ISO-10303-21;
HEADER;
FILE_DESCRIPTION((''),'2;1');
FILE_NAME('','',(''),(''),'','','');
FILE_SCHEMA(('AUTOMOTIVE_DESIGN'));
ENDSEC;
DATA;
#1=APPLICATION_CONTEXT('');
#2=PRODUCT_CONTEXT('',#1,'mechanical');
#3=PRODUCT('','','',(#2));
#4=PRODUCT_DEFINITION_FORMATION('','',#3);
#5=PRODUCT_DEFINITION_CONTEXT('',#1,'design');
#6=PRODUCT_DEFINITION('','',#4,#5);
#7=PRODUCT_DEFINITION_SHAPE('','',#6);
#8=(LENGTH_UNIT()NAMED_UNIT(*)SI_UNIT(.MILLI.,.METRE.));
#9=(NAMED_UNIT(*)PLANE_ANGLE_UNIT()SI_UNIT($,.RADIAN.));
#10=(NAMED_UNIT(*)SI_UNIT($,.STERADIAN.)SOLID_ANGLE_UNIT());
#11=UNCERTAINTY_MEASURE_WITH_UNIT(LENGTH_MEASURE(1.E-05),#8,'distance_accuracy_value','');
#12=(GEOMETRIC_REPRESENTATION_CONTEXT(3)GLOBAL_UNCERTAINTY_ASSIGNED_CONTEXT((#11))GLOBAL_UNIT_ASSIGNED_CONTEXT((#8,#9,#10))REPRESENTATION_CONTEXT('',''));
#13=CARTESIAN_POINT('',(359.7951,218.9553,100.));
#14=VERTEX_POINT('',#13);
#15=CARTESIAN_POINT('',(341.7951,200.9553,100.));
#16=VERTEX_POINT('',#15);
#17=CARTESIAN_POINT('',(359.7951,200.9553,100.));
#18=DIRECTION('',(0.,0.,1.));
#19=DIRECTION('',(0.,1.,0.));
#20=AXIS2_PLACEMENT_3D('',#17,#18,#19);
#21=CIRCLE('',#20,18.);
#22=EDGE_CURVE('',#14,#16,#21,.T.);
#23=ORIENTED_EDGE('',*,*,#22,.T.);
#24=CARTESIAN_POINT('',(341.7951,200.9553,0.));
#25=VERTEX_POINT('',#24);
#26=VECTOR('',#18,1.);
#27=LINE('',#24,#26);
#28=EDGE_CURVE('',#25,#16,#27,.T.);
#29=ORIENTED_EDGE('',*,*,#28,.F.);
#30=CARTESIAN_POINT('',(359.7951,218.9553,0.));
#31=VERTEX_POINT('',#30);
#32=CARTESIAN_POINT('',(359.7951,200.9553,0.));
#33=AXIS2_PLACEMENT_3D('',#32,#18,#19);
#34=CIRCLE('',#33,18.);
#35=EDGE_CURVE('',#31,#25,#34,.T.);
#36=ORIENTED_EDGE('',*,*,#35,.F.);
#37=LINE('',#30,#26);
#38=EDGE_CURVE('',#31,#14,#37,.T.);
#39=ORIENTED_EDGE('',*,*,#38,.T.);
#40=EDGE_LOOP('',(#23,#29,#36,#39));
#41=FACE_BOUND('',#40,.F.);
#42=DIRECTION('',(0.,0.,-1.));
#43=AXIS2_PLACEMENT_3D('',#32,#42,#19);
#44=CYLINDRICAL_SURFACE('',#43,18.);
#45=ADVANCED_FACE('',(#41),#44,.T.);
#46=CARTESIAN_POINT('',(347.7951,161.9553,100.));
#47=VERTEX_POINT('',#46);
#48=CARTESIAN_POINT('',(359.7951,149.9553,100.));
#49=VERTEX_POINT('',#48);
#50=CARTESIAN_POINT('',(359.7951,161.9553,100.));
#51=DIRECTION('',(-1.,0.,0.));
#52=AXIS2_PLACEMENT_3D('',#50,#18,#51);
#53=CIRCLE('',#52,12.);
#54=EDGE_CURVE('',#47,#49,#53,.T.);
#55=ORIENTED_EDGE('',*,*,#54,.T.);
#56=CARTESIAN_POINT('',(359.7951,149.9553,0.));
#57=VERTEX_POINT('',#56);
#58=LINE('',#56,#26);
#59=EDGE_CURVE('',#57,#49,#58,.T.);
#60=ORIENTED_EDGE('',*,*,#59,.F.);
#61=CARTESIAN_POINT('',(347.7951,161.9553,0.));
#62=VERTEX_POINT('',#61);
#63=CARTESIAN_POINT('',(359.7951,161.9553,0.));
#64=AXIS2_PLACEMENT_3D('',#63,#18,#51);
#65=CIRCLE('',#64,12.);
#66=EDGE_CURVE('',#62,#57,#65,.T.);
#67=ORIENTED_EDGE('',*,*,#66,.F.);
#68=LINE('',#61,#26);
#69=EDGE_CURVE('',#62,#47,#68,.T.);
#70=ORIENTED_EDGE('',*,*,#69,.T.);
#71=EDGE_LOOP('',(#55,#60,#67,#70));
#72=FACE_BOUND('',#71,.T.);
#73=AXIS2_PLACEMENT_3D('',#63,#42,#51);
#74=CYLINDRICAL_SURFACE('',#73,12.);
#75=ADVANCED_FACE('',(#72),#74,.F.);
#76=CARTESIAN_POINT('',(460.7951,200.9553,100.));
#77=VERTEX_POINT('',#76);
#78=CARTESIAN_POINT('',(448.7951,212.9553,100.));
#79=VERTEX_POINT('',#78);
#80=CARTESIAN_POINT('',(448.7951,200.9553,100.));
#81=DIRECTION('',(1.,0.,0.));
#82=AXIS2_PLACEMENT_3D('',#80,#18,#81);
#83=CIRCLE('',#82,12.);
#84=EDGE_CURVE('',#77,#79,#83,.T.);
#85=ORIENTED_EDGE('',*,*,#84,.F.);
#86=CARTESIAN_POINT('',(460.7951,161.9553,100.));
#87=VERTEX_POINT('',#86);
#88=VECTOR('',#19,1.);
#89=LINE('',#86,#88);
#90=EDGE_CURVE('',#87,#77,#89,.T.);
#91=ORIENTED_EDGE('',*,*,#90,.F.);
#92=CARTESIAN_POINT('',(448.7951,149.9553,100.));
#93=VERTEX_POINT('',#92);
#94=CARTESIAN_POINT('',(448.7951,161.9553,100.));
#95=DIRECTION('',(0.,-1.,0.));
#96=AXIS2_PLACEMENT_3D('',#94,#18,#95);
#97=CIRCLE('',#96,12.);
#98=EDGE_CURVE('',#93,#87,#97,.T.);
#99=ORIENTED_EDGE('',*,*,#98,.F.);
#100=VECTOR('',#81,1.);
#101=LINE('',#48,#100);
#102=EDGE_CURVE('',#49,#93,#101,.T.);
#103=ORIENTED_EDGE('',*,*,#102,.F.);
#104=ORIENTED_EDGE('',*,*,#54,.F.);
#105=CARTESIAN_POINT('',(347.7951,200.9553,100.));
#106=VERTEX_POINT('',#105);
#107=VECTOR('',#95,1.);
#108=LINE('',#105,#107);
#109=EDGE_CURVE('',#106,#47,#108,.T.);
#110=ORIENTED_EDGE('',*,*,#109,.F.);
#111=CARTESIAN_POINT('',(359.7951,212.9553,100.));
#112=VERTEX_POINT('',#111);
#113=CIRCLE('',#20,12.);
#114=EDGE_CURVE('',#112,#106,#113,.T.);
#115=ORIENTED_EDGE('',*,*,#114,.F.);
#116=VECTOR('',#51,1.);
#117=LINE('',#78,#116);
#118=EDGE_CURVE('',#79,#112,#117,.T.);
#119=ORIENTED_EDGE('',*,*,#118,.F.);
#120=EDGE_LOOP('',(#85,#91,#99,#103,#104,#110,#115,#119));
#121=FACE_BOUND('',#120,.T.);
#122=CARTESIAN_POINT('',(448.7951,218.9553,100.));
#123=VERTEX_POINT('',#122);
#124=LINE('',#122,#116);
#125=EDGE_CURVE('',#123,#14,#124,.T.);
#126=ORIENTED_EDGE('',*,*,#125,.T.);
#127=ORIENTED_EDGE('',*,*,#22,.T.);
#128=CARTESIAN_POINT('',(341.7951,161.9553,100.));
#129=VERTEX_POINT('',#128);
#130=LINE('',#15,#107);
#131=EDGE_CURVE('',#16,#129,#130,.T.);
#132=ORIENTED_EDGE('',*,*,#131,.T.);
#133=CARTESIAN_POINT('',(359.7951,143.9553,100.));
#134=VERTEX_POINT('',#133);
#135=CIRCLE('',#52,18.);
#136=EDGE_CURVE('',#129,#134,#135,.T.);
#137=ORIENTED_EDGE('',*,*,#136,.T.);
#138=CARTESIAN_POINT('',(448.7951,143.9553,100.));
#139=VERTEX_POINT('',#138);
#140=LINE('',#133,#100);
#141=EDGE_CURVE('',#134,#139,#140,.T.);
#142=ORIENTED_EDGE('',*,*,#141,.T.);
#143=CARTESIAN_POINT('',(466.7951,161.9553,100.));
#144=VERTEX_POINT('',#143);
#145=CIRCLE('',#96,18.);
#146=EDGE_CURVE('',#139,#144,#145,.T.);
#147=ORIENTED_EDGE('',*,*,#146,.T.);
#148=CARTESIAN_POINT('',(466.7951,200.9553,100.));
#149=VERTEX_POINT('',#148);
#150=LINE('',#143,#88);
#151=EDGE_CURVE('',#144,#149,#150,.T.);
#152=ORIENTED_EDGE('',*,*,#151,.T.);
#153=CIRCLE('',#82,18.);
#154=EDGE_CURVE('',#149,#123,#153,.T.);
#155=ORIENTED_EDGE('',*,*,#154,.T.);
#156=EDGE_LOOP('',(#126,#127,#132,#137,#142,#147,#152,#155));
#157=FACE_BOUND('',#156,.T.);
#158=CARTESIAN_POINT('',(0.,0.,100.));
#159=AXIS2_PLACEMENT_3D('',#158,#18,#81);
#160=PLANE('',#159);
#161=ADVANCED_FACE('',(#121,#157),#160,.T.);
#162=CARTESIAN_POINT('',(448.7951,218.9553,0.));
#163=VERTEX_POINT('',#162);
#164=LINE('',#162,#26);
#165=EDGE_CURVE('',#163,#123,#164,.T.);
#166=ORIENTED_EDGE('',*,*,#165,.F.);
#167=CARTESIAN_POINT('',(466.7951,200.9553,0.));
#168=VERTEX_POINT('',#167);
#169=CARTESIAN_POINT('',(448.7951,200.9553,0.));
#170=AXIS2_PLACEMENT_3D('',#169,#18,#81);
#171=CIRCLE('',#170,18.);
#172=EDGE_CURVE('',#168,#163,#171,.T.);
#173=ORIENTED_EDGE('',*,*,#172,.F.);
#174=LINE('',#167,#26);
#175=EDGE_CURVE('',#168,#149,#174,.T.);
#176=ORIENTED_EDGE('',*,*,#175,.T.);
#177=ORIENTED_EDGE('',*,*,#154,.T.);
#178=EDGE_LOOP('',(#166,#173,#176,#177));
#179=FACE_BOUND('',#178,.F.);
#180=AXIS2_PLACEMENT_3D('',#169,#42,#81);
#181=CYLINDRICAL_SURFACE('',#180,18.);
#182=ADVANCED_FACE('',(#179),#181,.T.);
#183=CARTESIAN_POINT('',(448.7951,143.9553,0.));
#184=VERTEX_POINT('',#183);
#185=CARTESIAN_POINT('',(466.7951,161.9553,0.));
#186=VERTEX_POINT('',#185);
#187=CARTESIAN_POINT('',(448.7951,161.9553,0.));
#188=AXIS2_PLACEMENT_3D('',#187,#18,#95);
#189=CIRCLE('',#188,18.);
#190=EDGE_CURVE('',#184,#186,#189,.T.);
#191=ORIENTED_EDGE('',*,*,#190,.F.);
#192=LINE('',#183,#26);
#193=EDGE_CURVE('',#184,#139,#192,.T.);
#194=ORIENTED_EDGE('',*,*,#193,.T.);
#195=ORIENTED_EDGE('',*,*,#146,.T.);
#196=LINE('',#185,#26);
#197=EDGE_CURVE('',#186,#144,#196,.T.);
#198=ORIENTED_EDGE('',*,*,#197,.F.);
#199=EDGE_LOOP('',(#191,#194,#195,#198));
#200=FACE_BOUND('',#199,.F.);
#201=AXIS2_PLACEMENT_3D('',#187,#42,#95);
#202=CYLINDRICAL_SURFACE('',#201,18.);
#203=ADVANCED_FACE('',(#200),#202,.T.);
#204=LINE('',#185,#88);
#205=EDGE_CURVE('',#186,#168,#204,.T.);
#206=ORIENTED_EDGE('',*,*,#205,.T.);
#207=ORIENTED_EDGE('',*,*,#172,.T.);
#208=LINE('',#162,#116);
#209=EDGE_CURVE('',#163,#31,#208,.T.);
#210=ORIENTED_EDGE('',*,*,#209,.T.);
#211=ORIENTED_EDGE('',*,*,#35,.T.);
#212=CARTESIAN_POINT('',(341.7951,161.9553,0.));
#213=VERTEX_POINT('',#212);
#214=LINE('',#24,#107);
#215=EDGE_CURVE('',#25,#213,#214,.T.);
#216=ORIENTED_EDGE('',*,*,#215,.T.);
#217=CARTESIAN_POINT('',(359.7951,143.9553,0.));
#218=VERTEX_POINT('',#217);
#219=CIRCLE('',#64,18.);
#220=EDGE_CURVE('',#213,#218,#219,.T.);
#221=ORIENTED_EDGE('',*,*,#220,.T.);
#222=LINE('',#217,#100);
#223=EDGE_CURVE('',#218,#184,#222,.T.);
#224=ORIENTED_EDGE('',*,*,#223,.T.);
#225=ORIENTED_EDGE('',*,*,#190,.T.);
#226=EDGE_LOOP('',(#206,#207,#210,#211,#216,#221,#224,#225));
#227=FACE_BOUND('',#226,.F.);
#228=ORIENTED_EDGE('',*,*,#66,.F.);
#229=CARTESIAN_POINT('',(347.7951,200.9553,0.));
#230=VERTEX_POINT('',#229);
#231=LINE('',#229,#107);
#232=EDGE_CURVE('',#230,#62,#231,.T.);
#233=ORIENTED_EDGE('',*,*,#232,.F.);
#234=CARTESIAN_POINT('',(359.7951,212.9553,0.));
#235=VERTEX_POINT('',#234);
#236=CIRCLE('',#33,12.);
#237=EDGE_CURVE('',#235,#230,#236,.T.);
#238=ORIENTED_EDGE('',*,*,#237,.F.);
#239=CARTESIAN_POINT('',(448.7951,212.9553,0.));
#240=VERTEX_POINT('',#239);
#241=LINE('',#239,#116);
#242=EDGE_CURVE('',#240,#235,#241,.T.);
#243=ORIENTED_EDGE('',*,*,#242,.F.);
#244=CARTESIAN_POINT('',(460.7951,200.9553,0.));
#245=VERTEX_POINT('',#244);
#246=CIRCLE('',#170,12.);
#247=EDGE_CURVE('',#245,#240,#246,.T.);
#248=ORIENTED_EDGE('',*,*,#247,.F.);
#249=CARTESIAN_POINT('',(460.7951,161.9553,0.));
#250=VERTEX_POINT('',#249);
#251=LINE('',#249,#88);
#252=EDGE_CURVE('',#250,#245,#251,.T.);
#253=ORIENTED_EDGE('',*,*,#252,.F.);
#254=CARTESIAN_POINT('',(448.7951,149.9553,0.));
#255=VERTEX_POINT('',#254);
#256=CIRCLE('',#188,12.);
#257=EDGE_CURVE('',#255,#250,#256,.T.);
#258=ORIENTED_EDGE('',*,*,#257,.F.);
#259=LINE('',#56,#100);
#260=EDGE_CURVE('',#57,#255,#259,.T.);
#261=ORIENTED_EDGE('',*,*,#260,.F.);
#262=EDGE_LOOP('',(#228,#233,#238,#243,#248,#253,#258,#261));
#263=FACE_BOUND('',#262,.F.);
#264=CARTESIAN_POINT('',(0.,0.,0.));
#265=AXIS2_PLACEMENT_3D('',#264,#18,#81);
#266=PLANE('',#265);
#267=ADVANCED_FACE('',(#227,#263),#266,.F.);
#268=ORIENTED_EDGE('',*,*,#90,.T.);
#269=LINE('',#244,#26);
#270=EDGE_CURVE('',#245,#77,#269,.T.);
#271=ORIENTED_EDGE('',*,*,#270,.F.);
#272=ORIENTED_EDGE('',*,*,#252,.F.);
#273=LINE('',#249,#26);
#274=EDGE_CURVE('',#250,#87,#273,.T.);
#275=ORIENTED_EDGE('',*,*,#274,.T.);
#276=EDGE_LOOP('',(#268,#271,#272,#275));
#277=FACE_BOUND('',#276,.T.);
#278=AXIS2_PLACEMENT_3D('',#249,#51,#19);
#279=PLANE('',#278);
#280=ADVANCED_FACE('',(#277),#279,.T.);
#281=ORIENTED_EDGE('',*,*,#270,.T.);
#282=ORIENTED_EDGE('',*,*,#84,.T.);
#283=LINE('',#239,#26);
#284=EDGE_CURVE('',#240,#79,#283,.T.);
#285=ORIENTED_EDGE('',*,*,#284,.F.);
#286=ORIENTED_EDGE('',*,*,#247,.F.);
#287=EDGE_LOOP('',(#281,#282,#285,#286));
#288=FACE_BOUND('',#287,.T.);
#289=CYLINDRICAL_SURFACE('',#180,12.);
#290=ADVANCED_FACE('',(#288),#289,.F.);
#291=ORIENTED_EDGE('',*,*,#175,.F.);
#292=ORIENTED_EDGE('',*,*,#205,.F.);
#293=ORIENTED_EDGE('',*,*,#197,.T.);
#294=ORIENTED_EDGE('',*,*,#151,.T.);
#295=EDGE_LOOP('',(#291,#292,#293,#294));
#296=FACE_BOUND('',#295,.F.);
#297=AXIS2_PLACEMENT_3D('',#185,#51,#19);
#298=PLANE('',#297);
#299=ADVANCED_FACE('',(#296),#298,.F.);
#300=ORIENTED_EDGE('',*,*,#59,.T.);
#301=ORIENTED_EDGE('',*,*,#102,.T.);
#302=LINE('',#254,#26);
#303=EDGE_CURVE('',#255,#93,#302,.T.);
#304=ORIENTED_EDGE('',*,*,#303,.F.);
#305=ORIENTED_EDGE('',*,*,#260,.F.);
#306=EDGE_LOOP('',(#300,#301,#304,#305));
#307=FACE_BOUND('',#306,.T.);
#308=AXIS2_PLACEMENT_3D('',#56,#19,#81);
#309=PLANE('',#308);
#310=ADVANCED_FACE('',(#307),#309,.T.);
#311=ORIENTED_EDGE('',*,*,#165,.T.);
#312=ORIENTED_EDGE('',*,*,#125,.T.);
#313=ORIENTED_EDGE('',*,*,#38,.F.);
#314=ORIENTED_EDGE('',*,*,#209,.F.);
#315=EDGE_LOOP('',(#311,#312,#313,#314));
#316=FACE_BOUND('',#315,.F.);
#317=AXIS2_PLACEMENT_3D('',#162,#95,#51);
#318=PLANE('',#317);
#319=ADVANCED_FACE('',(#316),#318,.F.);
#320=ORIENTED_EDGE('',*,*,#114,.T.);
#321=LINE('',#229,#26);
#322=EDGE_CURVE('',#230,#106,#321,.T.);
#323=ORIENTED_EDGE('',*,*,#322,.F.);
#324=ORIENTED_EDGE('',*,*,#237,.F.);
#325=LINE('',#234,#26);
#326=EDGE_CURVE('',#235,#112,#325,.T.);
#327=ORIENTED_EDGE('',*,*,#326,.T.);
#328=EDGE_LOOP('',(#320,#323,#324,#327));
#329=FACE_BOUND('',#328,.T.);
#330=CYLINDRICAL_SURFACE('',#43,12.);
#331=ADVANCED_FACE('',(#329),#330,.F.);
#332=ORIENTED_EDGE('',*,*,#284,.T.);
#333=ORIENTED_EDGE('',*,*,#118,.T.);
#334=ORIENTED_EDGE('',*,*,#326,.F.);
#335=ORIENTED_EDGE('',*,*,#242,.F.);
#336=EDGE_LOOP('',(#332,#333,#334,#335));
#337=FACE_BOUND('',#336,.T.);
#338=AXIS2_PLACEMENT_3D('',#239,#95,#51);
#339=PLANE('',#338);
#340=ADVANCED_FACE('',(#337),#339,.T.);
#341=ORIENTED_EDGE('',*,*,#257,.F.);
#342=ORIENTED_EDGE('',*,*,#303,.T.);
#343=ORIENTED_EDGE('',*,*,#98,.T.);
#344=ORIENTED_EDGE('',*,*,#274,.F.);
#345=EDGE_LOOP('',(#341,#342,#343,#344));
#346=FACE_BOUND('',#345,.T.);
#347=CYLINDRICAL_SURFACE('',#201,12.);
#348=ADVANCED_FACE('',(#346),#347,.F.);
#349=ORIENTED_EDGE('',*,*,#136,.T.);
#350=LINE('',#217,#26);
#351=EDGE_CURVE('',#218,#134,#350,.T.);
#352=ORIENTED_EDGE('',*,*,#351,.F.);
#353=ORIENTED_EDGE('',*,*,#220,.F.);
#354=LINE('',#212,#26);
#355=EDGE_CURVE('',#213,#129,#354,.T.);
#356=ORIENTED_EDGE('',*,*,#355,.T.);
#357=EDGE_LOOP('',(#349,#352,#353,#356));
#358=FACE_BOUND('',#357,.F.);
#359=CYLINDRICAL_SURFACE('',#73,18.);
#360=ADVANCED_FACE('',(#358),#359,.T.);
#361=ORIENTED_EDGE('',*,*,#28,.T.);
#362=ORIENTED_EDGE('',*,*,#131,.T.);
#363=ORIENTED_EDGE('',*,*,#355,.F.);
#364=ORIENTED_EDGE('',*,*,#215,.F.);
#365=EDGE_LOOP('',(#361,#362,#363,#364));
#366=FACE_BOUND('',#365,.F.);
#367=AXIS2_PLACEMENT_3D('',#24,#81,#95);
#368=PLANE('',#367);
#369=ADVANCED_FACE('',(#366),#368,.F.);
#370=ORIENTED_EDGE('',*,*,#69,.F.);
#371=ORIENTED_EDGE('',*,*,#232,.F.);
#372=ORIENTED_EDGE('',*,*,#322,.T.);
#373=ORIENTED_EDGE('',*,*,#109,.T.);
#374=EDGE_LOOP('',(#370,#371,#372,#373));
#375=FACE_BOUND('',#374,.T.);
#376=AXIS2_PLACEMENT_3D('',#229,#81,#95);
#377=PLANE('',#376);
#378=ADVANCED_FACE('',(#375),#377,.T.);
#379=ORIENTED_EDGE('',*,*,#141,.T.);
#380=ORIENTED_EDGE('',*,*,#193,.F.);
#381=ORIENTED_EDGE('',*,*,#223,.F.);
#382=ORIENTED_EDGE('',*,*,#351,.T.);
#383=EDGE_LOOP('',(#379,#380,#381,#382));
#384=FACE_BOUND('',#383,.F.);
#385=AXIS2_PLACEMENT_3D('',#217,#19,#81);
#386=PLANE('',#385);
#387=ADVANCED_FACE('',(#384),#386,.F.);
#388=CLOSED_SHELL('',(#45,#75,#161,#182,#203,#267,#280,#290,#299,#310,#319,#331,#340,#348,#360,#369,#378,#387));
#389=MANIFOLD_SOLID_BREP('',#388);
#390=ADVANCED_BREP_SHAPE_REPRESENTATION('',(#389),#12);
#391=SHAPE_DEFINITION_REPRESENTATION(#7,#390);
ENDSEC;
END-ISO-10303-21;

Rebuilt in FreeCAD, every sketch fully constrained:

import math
import FreeCAD as App
import Part
import Sketcher
Q = App.Units.Quantity

doc = App.newDocument("Part")
body = doc.addObject("PartDesign::Body", "Body")

# Sketch on XY plane
sketch1 = body.newObject("Sketcher::SketchObject", "Sketch")
sketch1.AttachmentSupport = (doc.getObject("XY_Plane"), [""])
sketch1.MapMode = "FlatFace"
sketch1.addGeometry([
    Part.LineSegment(App.Vector(360, 144, 0), App.Vector(449, 144, 0)),  # 0
    Part.ArcOfCircle(Part.Circle(App.Vector(449, 162, 0), App.Vector(0, 0, 1), 18), math.radians(-90), math.radians(0)),  # 1
    Part.LineSegment(App.Vector(467, 162, 0), App.Vector(467, 201, 0)),  # 2
    Part.ArcOfCircle(Part.Circle(App.Vector(449, 201, 0), App.Vector(0, 0, 1), 18), math.radians(0), math.radians(90)),  # 3
    Part.LineSegment(App.Vector(449, 219, 0), App.Vector(360, 219, 0)),  # 4
    Part.ArcOfCircle(Part.Circle(App.Vector(360, 201, 0), App.Vector(0, 0, 1), 18), math.radians(90), math.radians(180)),  # 5
    Part.LineSegment(App.Vector(342, 201, 0), App.Vector(342, 162, 0)),  # 6
    Part.ArcOfCircle(Part.Circle(App.Vector(360, 162, 0), App.Vector(0, 0, 1), 18), math.radians(180), math.radians(270)),  # 7
    Part.ArcOfCircle(Part.Circle(App.Vector(449, 162, 0), App.Vector(0, 0, 1), 12), math.radians(-90), math.radians(0)),  # 8
    Part.LineSegment(App.Vector(449, 150, 0), App.Vector(360, 150, 0)),  # 9
    Part.ArcOfCircle(Part.Circle(App.Vector(360, 162, 0), App.Vector(0, 0, 1), 12), math.radians(180), math.radians(270)),  # 10
    Part.LineSegment(App.Vector(348, 162, 0), App.Vector(348, 201, 0)),  # 11
    Part.ArcOfCircle(Part.Circle(App.Vector(360, 201, 0), App.Vector(0, 0, 1), 12), math.radians(90), math.radians(180)),  # 12
    Part.LineSegment(App.Vector(360, 213, 0), App.Vector(449, 213, 0)),  # 13
    Part.ArcOfCircle(Part.Circle(App.Vector(449, 201, 0), App.Vector(0, 0, 1), 12), math.radians(0), math.radians(90)),  # 14
    Part.LineSegment(App.Vector(461, 201, 0), App.Vector(461, 162, 0)),  # 15
], False)
sketch1.addConstraint([
    Sketcher.Constraint("Tangent", 0, 2, 1, 1),
    Sketcher.Constraint("Tangent", 1, 2, 2, 1),
    Sketcher.Constraint("Tangent", 2, 2, 3, 1),
    Sketcher.Constraint("Tangent", 3, 2, 4, 1),
    Sketcher.Constraint("Tangent", 4, 2, 5, 1),
    Sketcher.Constraint("Tangent", 5, 2, 6, 1),
    Sketcher.Constraint("Tangent", 6, 2, 7, 1),
    Sketcher.Constraint("Tangent", 7, 2, 0, 1),
    Sketcher.Constraint("Tangent", 8, 1, 9, 1),
    Sketcher.Constraint("Tangent", 9, 2, 10, 2),
    Sketcher.Constraint("Tangent", 10, 1, 11, 1),
    Sketcher.Constraint("Tangent", 11, 2, 12, 2),
    Sketcher.Constraint("Tangent", 12, 1, 13, 1),
    Sketcher.Constraint("Tangent", 13, 2, 14, 2),
    Sketcher.Constraint("Tangent", 14, 1, 15, 1),
    Sketcher.Constraint("Tangent", 15, 2, 8, 2),
    Sketcher.Constraint("Horizontal", 0),
    Sketcher.Constraint("Vertical", 2),
    Sketcher.Constraint("Horizontal", 4),
    Sketcher.Constraint("Vertical", 6),
    Sketcher.Constraint("Horizontal", 9),
    Sketcher.Constraint("Vertical", 11),
    Sketcher.Constraint("Horizontal", 13),
    Sketcher.Constraint("Vertical", 15),
    Sketcher.Constraint("Coincident", 8, 3, 1, 3),
    Sketcher.Constraint("Coincident", 10, 3, 7, 3),
    Sketcher.Constraint("Coincident", 12, 3, 5, 3),
    Sketcher.Constraint("Equal", 1, 3),
    Sketcher.Constraint("Equal", 3, 5),
    Sketcher.Constraint("Equal", 5, 7),
    Sketcher.Constraint("Equal", 12, 14),
    Sketcher.Constraint("Radius", 1, Q("18 mm")),
    Sketcher.Constraint("Radius", 8, Q("12 mm")),
    Sketcher.Constraint("DistanceX", 0, 1, 0, 2, Q("89 mm")),
    Sketcher.Constraint("DistanceY", 2, 1, 2, 2, Q("39 mm")),
    Sketcher.Constraint("DistanceX", -1, 1, 1, 3, Q("448.795 mm")),
    Sketcher.Constraint("DistanceY", -1, 1, 1, 3, Q("161.9553 mm")),
])
pad1 = body.newObject("PartDesign::Pad", "Pad")
pad1.Profile = sketch1
pad1.Length = 100

doc.recompute()
